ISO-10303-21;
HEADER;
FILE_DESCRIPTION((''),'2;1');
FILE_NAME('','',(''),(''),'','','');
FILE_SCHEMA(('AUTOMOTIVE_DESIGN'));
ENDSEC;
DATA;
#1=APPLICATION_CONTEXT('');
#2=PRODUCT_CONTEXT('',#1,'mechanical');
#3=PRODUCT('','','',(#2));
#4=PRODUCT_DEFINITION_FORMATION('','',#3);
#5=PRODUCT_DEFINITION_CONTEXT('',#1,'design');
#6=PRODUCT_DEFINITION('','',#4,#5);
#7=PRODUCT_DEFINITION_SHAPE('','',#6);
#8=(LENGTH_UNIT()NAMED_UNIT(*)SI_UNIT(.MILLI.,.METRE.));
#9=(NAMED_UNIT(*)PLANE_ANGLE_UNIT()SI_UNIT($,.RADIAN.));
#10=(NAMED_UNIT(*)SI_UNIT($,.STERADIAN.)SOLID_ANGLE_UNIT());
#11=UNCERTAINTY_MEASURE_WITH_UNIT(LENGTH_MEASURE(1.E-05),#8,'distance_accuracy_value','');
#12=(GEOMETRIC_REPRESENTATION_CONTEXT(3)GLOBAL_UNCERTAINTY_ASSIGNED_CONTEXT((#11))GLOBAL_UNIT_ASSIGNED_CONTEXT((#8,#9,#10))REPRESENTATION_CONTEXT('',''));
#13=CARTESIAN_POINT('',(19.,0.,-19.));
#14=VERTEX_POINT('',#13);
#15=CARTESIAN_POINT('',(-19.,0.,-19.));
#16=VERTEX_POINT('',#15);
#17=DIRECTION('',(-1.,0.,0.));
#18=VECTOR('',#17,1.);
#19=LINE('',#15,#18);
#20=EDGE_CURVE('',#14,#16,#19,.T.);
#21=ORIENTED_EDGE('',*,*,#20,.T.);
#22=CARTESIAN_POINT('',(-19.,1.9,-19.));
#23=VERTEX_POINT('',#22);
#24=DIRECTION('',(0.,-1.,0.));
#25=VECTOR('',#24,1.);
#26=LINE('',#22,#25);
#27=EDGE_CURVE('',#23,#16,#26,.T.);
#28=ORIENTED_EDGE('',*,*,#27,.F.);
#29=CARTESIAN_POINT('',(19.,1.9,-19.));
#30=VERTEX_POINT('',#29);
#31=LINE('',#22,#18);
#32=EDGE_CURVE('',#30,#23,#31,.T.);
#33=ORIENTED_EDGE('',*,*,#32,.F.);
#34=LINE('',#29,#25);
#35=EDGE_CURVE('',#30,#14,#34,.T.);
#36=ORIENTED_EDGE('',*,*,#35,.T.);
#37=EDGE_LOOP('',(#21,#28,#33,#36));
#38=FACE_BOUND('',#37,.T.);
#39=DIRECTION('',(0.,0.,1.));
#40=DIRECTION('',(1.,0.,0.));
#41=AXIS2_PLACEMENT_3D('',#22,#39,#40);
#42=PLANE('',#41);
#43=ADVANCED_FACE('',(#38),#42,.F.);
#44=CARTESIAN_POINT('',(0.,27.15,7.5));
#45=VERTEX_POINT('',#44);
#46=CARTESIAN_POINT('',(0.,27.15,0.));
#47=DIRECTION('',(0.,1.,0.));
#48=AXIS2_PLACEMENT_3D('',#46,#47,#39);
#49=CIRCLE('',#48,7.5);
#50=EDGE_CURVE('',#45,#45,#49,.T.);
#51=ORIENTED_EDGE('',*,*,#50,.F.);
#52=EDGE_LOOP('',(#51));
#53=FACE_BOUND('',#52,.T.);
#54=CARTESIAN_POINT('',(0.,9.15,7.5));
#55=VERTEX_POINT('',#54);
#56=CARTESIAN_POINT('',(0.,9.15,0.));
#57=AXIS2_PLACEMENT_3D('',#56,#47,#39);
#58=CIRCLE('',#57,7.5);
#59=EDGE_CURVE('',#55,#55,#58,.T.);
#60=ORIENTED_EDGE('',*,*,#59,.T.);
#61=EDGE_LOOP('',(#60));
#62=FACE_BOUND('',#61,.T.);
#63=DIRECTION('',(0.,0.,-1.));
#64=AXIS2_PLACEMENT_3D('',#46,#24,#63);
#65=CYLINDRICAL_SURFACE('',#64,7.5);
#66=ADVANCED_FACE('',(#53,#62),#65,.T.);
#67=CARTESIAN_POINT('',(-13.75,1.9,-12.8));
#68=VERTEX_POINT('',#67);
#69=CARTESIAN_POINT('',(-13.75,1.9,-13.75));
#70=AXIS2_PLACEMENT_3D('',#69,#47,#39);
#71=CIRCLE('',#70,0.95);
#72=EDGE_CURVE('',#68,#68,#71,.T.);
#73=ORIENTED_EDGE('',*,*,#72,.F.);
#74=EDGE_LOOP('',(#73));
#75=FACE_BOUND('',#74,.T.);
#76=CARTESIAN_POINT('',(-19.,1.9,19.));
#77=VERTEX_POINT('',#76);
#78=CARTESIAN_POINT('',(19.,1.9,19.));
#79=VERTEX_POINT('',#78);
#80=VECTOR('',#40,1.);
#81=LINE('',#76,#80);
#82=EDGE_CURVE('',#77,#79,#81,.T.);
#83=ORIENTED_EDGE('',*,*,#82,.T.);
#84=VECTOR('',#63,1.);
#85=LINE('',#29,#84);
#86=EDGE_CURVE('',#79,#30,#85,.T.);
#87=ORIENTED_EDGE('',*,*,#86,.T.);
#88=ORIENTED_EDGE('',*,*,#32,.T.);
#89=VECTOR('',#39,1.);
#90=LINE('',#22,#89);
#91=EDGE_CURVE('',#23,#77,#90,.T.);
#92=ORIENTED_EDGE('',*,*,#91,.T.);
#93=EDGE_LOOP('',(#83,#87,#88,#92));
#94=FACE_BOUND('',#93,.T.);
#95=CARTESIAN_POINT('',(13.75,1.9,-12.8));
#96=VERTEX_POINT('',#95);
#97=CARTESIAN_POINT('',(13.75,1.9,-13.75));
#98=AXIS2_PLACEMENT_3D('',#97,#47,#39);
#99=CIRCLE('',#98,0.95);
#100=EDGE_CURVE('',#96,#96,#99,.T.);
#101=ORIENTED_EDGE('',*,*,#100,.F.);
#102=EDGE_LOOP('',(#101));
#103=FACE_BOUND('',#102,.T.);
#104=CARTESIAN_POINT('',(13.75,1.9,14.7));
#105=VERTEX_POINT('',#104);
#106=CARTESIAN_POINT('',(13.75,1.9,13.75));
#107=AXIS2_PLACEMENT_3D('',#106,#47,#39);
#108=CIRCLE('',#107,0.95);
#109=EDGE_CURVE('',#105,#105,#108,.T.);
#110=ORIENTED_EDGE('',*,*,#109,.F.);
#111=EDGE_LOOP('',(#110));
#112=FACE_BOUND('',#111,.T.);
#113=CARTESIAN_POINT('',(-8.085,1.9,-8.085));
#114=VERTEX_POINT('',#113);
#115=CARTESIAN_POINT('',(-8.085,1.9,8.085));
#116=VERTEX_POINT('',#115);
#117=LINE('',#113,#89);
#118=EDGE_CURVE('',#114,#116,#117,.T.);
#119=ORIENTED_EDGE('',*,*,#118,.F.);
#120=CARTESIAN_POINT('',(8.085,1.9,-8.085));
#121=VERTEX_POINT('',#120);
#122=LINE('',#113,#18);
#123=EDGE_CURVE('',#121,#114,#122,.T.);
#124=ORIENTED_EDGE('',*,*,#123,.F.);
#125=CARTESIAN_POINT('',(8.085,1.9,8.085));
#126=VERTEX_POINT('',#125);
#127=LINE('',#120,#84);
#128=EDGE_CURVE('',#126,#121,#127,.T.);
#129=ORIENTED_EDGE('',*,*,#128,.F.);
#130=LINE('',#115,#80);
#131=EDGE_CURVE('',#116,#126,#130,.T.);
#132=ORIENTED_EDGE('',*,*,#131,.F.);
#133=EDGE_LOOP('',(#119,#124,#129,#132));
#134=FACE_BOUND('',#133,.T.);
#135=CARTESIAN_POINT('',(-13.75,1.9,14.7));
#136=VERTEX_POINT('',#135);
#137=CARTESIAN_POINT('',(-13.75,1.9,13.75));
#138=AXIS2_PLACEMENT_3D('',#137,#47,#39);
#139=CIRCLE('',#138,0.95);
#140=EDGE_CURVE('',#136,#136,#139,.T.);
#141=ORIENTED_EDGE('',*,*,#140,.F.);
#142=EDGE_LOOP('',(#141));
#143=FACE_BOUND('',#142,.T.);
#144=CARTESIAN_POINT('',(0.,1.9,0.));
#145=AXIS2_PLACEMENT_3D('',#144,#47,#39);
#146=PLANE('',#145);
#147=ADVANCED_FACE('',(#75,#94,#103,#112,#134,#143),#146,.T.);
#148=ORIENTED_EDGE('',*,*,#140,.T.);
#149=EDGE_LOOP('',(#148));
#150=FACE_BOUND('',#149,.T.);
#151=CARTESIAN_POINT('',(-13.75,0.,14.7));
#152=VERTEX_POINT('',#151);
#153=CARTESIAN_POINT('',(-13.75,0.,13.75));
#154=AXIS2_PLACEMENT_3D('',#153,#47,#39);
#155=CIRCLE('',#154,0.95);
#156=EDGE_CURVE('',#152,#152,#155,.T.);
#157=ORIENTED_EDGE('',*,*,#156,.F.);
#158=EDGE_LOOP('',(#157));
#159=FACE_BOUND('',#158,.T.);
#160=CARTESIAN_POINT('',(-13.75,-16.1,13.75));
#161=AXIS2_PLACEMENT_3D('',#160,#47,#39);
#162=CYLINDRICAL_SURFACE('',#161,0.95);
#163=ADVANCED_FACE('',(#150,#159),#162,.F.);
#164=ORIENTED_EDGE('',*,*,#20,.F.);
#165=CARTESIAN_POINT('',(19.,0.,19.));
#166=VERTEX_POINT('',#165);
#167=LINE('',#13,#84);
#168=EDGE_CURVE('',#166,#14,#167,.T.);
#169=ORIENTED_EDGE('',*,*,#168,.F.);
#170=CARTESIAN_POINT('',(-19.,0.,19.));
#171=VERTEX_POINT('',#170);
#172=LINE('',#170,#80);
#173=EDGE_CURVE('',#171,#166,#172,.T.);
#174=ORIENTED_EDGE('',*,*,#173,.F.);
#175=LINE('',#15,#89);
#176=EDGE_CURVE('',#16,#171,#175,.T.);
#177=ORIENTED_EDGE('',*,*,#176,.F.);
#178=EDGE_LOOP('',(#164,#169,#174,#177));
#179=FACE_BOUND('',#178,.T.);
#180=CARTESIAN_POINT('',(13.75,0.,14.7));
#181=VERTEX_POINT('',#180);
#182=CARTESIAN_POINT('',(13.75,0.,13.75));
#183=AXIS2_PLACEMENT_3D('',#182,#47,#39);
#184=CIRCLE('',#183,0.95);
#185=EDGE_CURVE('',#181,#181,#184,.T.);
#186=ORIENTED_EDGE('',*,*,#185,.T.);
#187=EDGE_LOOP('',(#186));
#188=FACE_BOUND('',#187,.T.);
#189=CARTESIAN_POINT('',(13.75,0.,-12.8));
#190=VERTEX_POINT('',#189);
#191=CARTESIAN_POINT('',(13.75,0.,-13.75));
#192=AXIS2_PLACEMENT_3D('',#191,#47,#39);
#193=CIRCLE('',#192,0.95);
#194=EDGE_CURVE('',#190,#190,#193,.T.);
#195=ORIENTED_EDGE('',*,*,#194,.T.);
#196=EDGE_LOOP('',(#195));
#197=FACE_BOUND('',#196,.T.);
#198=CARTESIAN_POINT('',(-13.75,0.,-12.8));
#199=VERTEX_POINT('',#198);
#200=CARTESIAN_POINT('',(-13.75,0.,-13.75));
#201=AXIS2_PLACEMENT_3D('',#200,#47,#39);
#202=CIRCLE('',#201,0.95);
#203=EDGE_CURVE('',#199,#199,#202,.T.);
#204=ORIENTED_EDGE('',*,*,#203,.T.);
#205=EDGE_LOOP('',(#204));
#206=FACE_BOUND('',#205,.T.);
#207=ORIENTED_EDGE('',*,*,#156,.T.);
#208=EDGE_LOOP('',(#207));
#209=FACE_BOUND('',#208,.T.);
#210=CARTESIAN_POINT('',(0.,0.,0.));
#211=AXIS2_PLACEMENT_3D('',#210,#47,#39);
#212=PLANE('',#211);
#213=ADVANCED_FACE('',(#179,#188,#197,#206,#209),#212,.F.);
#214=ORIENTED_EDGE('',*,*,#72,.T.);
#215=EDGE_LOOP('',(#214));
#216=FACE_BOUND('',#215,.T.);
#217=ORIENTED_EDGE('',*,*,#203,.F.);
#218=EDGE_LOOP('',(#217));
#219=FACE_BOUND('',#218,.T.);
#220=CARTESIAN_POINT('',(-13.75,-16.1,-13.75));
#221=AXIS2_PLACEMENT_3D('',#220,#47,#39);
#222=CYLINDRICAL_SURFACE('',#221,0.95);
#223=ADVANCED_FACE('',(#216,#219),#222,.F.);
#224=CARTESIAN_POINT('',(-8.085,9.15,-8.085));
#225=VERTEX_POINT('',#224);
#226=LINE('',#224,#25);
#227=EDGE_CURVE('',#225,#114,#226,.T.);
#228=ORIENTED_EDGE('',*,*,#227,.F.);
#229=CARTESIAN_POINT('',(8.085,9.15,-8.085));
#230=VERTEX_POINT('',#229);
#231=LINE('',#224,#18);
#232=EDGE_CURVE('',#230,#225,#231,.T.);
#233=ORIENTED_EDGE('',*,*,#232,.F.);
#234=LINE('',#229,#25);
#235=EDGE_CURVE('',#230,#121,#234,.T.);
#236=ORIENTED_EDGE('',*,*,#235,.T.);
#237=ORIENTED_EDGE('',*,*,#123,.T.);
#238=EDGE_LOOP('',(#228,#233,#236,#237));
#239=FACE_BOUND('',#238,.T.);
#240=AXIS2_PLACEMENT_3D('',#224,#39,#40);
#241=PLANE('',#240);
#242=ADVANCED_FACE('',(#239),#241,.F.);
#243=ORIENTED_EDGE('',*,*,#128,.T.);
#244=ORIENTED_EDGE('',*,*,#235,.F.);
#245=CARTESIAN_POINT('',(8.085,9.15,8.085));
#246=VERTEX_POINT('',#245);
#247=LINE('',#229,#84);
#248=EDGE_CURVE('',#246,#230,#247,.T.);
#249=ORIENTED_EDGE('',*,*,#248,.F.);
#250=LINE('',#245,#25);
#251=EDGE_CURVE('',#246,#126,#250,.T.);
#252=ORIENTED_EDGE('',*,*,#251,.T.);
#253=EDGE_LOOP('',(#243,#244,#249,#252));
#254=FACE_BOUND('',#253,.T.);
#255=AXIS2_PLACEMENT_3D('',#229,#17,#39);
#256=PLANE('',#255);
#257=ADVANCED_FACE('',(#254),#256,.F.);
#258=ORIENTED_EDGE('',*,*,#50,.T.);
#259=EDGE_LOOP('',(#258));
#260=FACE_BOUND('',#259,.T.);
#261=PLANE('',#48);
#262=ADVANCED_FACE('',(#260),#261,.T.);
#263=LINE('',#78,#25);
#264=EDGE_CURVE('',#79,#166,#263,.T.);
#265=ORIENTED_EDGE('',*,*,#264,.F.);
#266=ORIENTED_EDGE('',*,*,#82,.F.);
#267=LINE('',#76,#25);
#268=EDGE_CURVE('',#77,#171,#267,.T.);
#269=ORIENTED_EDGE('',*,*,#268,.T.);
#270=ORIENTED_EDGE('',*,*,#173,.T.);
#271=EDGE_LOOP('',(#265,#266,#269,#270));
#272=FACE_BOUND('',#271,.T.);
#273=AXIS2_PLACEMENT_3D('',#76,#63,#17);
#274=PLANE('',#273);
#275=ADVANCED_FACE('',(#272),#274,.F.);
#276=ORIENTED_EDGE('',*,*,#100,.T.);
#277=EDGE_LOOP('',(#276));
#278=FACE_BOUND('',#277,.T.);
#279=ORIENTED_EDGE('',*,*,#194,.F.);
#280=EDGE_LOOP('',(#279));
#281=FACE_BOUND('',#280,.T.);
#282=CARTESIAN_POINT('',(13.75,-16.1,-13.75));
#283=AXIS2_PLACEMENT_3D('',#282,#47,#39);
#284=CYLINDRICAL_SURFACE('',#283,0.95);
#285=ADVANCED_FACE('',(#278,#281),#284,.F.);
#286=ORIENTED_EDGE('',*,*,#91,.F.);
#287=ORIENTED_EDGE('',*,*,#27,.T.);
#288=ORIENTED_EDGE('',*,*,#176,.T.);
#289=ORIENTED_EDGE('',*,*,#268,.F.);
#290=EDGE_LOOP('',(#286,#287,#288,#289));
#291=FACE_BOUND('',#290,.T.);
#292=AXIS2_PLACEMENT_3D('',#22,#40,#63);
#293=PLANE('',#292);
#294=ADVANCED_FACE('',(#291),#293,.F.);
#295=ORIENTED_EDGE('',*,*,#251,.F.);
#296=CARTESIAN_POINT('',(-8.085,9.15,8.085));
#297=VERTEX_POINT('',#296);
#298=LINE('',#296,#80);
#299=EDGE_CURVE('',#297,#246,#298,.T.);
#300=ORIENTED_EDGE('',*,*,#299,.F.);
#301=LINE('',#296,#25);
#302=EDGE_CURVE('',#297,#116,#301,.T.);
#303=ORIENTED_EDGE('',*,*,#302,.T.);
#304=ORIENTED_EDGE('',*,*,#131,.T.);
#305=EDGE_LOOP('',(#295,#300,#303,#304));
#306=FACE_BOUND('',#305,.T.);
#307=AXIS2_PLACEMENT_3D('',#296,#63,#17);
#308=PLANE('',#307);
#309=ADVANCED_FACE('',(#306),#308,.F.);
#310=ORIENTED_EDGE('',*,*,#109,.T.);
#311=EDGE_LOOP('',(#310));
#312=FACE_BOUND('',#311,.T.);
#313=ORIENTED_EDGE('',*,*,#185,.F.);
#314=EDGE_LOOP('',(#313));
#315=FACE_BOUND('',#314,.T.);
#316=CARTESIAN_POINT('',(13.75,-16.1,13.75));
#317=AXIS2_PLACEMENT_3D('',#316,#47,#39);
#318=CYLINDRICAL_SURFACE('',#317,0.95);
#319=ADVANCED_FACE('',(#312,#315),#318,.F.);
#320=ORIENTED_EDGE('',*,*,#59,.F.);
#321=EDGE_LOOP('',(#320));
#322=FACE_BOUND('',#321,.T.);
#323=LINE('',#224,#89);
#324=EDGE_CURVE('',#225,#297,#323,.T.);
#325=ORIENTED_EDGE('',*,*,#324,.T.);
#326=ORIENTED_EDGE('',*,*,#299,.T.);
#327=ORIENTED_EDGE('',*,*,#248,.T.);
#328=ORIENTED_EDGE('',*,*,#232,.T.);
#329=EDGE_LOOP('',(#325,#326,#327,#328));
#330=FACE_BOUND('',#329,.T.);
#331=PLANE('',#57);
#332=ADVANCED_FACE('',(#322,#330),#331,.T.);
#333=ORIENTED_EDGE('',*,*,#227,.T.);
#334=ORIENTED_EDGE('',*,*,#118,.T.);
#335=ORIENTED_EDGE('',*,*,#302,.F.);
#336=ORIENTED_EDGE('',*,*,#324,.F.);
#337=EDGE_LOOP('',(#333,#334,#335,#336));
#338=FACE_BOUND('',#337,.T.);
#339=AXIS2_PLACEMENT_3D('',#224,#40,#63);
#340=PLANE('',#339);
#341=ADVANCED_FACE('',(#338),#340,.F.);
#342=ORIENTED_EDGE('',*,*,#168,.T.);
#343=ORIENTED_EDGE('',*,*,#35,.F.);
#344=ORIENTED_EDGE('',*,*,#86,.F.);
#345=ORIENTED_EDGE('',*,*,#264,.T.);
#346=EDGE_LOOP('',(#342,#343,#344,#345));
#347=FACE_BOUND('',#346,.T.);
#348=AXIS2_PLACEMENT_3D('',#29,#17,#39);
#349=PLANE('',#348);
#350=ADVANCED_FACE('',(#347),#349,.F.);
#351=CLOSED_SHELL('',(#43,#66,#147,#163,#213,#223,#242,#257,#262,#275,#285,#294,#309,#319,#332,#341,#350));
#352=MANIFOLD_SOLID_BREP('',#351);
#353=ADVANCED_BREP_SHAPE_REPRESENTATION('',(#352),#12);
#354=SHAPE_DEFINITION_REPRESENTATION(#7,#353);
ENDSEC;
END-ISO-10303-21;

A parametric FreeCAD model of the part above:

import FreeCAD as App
import Part
import Sketcher

V = App.Vector
Q = App.Units.Quantity


def add_polygon(sketch, points):
    """Adds a closed chain of lines whose ends are joined by coincident constraints."""
    first, n = sketch.GeometryCount, len(points)
    for a, b in zip(points, points[1:] + points[:1]):
        sketch.addGeometry(Part.LineSegment(App.Vector(*a, 0), App.Vector(*b, 0)), False)
    for i in range(n):
        sketch.addConstraint(Sketcher.Constraint("Coincident", first + i, 2, first + (i + 1) % n, 1))

doc = App.newDocument("Part")
body = doc.addObject("PartDesign::Body", "Body")

sketch1 = doc.addObject("Sketcher::SketchObject", "Sketch")
body.addObject(sketch1)
sketch1.AttachmentSupport = (doc.XZ_Plane, [""])
sketch1.MapMode = "FlatFace"
add_polygon(sketch1, [(-19, -19), (-19, 19), (19, 19), (19, -19)])
sketch1.addConstraint(Sketcher.Constraint("Vertical", 0))
sketch1.addConstraint(Sketcher.Constraint("Horizontal", 1))
sketch1.addConstraint(Sketcher.Constraint("Vertical", 2))
sketch1.addConstraint(Sketcher.Constraint("Horizontal", 3))
sketch1.addConstraint(Sketcher.Constraint("Symmetric", 0, 2, 2, 2, -1, 1))
sketch1.addConstraint(Sketcher.Constraint("Equal", 3, 0))
sketch1.addConstraint(Sketcher.Constraint("DistanceX", 1, 1, 1, 2, Q("38 mm")))
pad1 = doc.addObject("PartDesign::Pad", "Pad")
body.addObject(pad1)
pad1.Profile = sketch1
pad1.Length = 1.9
pad1.Reversed = True

sketch2 = doc.addObject("Sketcher::SketchObject", "Sketch001")
body.addObject(sketch2)
sketch2.AttachmentSupport = (doc.XZ_Plane, [""])
sketch2.MapMode = "FlatFace"
sketch2.AttachmentOffset = App.Placement(V(0, 0, -1.9), App.Rotation())
add_polygon(sketch2, [(-8, -8), (-8, 8), (8, 8), (8, -8)])
sketch2.addConstraint(Sketcher.Constraint("Vertical", 0))
sketch2.addConstraint(Sketcher.Constraint("Horizontal", 1))
sketch2.addConstraint(Sketcher.Constraint("Vertical", 2))
sketch2.addConstraint(Sketcher.Constraint("Horizontal", 3))
sketch2.addConstraint(Sketcher.Constraint("Symmetric", 0, 2, 2, 2, -1, 1))
sketch2.addConstraint(Sketcher.Constraint("Equal", 3, 0))
sketch2.addConstraint(Sketcher.Constraint("DistanceX", 1, 1, 1, 2, Q("16.17 mm")))
pad2 = doc.addObject("PartDesign::Pad", "Pad001")
body.addObject(pad2)
pad2.Profile = sketch2
pad2.Length = 7.25
pad2.Reversed = True

sketch3 = doc.addObject("Sketcher::SketchObject", "Sketch002")
body.addObject(sketch3)
sketch3.AttachmentSupport = (doc.XZ_Plane, [""])
sketch3.MapMode = "FlatFace"
sketch3.AttachmentOffset = App.Placement(V(0, 0, -9.15), App.Rotation())
sketch3.addGeometry(Part.Circle(V(0, 0, 0), V(0, 0, 1), 8), False)
sketch3.addConstraint(Sketcher.Constraint("Coincident", 0, 3, -1, 1))
sketch3.addConstraint(Sketcher.Constraint("Diameter", 0, Q("15 mm")))
pad3 = doc.addObject("PartDesign::Pad", "Pad002")
body.addObject(pad3)
pad3.Profile = sketch3
pad3.Length = 18
pad3.Reversed = True

sketch4 = doc.addObject("Sketcher::SketchObject", "Sketch003")
body.addObject(sketch4)
sketch4.AttachmentSupport = (doc.XZ_Plane, [""])
sketch4.MapMode = "FlatFace"
sketch4.AttachmentOffset = App.Placement(V(0, 0, -1.9), App.Rotation())
sketch4.addGeometry(Part.Circle(V(-13.8, -13.8, 0), V(0, 0, 1), 0.9), False)
sketch4.addGeometry(Part.Circle(V(13.8, -13.8, 0), V(0, 0, 1), 0.9), False)
sketch4.addGeometry(Part.Circle(V(13.8, 13.8, 0), V(0, 0, 1), 0.9), False)
sketch4.addGeometry(Part.Circle(V(-13.8, 13.8, 0), V(0, 0, 1), 0.9), False)
sketch4.addConstraint(Sketcher.Constraint("Equal", 0, 1))
sketch4.addConstraint(Sketcher.Constraint("Equal", 1, 2))
sketch4.addConstraint(Sketcher.Constraint("Equal", 2, 3))
sketch4.addConstraint(Sketcher.Constraint("Symmetric", 0, 3, 2, 3, -1, 1))
sketch4.addConstraint(Sketcher.Constraint("Symmetric", 1, 3, 3, 3, -1, 1))
sketch4.addConstraint(Sketcher.Constraint("Symmetric", 0, 3, 1, 3, -2))
sketch4.addConstraint(Sketcher.Constraint("Diameter", 0, Q("1.9 mm")))
sketch4.addConstraint(Sketcher.Constraint("DistanceX", 0, 3, 1, 3, Q("27.5 mm")))
sketch4.addConstraint(Sketcher.Constraint("DistanceY", 1, 3, 2, 3, Q("27.5 mm")))
pocket1 = doc.addObject("PartDesign::Pocket", "Pocket")
body.addObject(pocket1)
pocket1.Profile = sketch4
pocket1.Length = 18
pocket1.Reversed = True

doc.recompute()
